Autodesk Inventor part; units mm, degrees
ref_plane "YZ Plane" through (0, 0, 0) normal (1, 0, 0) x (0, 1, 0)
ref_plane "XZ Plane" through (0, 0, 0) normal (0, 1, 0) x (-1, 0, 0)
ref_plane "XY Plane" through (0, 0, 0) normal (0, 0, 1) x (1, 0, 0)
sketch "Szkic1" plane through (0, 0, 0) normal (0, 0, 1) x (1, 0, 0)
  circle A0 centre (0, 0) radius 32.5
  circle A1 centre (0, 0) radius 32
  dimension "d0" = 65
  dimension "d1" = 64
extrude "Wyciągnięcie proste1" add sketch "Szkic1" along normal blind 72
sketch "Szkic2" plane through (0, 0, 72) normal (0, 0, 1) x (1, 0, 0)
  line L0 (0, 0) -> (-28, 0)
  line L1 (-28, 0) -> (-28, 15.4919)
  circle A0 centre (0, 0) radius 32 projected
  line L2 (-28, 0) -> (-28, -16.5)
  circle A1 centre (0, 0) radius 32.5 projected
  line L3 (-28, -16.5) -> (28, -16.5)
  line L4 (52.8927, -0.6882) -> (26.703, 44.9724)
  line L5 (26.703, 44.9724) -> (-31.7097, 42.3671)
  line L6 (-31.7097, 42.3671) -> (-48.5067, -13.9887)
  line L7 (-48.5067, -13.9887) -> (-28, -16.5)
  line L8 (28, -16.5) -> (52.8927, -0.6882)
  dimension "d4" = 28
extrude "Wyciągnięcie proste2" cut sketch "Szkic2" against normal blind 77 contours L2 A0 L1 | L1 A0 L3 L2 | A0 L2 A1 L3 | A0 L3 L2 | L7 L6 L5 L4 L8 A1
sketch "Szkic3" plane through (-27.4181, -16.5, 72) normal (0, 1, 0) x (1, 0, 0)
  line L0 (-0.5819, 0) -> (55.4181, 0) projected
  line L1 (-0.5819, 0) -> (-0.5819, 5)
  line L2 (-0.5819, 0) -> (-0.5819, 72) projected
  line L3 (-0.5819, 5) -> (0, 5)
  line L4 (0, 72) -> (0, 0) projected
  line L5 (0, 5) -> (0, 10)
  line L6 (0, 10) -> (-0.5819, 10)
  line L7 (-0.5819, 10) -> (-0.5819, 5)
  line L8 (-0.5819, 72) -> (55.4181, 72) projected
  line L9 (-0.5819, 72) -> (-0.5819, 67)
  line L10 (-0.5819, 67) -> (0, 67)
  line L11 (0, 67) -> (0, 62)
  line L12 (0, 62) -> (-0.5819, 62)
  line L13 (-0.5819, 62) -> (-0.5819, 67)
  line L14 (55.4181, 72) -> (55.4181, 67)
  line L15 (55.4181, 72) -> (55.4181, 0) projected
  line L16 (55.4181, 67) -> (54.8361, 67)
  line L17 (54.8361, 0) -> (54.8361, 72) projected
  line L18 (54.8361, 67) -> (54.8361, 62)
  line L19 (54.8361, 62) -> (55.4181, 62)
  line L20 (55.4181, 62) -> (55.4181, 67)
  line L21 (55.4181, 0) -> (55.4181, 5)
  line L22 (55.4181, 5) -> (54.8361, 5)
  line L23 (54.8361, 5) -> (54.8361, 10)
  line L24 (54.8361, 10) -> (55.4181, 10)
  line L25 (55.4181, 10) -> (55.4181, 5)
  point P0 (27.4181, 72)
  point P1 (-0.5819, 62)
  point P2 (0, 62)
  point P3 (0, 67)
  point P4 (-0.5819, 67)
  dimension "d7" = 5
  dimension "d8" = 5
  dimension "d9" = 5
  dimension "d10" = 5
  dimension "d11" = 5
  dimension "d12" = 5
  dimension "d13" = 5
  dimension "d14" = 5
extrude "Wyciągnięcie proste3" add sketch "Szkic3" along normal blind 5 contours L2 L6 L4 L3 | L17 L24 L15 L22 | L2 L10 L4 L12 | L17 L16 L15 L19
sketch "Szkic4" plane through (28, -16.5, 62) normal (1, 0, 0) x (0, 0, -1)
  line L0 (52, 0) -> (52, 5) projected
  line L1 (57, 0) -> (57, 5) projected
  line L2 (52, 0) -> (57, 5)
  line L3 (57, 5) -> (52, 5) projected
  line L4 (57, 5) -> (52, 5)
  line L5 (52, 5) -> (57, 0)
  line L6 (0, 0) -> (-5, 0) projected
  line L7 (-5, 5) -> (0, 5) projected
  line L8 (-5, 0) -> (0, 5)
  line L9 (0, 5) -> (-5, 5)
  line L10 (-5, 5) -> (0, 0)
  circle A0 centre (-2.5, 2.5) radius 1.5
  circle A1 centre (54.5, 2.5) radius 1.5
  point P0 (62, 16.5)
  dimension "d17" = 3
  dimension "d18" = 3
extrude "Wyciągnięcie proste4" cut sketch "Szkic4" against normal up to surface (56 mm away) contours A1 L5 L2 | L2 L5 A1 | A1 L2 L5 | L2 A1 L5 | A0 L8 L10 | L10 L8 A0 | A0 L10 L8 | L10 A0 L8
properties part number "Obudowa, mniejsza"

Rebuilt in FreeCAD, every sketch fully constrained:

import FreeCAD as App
import Part
import Sketcher
from FreeCAD import Vector

doc = App.newDocument("Part")
params = doc.addObject("Spreadsheet::Sheet", "Params")
for row, (alias, value) in enumerate([
    ("sketch1_diameter", "65 mm"),
    ("sketch1_diameter2", "64 mm"),
    ("pad1_length", "72 mm"),
    ("sketch2_length", "29.49 mm"),
    ("sketch2_length2", "20.66 mm"),
    ("pocket1_length", "77 mm"),
    ("sketch3_height", "5 mm"),
    ("pad2_length", "5 mm"),
    ("sketch4_diameter", "3 mm"),
    ("pocket2_length", "56 mm"),
], start=1):
    params.set(f"A{row}", alias)
    params.set(f"B{row}", "=" + value)
    params.setAlias(f"B{row}", alias)

body = doc.addObject("PartDesign::Body", "Body")

# Sketch on XY plane
sketch1 = doc.addObject("Sketcher::SketchObject", "Sketch")
body.addObject(sketch1)
sketch1.AttachmentSupport = (doc.XY_Plane, [""])
sketch1.MapMode = "FlatFace"
sketch1.addGeometry(Part.Circle(Vector(0, 0, 0), Vector(0, 0, 1), 32.5), False)
sketch1.addGeometry(Part.Circle(Vector(0, 0, 0), Vector(0, 0, 1), 32), False)
sketch1.addConstraint(Sketcher.Constraint("Coincident", 0, 3, -1, 1))
sketch1.addConstraint(Sketcher.Constraint("Coincident", 1, 3, -1, 1))
sketch1.addConstraint(Sketcher.Constraint("Diameter", 0, 65.0))
sketch1.addConstraint(Sketcher.Constraint("Diameter", 1, 64.0))
sketch1.setExpression("Constraints[2]", "Params.sketch1_diameter")
sketch1.setExpression("Constraints[3]", "Params.sketch1_diameter2")
pad1 = doc.addObject("PartDesign::Pad", "Pad")
body.addObject(pad1)
pad1.Profile = sketch1
pad1.setExpression("Length", "Params.pad1_length")

# Sketch on XY plane
sketch2 = doc.addObject("Sketcher::SketchObject", "Sketch001")
body.addObject(sketch2)
sketch2.AttachmentSupport = (doc.XY_Plane, [""])
sketch2.MapMode = "FlatFace"
sketch2.AttachmentOffset = App.Placement(Vector(0, 0, 72), App.Rotation())
sketch2.addGeometry(Part.LineSegment(Vector(28, -16.5, 0), Vector(52.8927, -0.6882, 0)), False)
sketch2.addGeometry(Part.LineSegment(Vector(52.8927, -0.6882, 0), Vector(26.703, 44.9724, 0)), False)
sketch2.addGeometry(Part.LineSegment(Vector(26.703, 44.9724, 0), Vector(-31.7097, 42.3671, 0)), False)
sketch2.addGeometry(Part.LineSegment(Vector(-31.7097, 42.3671, 0), Vector(-48.5067, -13.9887, 0)), False)
sketch2.addGeometry(Part.LineSegment(Vector(-48.5067, -13.9887, 0), Vector(-28, -16.5, 0)), False)
sketch2.addGeometry(Part.LineSegment(Vector(-28, -16.5, 0), Vector(28, -16.5, 0)), False)
sketch2.addConstraint(Sketcher.Constraint("Coincident", 0, 2, 1, 1))
sketch2.addConstraint(Sketcher.Constraint("Coincident", 1, 2, 2, 1))
sketch2.addConstraint(Sketcher.Constraint("Coincident", 2, 2, 3, 1))
sketch2.addConstraint(Sketcher.Constraint("Coincident", 3, 2, 4, 1))
sketch2.addConstraint(Sketcher.Constraint("Coincident", 4, 2, 5, 1))
sketch2.addConstraint(Sketcher.Constraint("Coincident", 5, 2, 0, 1))
sketch2.addConstraint(Sketcher.Constraint("Horizontal", 5))
sketch2.addConstraint(Sketcher.Constraint("DistanceX", 4, 2, -1, 1, 28.0))
sketch2.addConstraint(Sketcher.Constraint("DistanceX", -1, 1, 5, 2, 28.0))
sketch2.addConstraint(Sketcher.Constraint("DistanceY", 4, 2, -1, 1, 16.5))
sketch2.addConstraint(Sketcher.Constraint("Distance", 0, 29.49))
sketch2.addConstraint(Sketcher.Constraint("Distance", 4, 20.66))
sketch2.addConstraint(Sketcher.Constraint("DistanceX", -1, 1, 1, 2, 26.703))
sketch2.addConstraint(Sketcher.Constraint("DistanceY", -1, 1, 2, 2, 42.367))
sketch2.addConstraint(Sketcher.Constraint("DistanceX", 3, 2, 2, 2, 16.797))
sketch2.addConstraint(Sketcher.Constraint("DistanceY", 3, 2, 1, 2, 58.961))
sketch2.addConstraint(Sketcher.Constraint("Distance", 1, 52.6383))
sketch2.addConstraint(Sketcher.Constraint("Distance", 2, 58.4708))
sketch2.setExpression("Constraints[10]", "Params.sketch2_length")
sketch2.setExpression("Constraints[11]", "Params.sketch2_length2")
pocket1 = doc.addObject("PartDesign::Pocket", "Pocket")
body.addObject(pocket1)
pocket1.Profile = sketch2
pocket1.setExpression("Length", "Params.pocket1_length")

# Sketch on XZ plane
sketch3 = doc.addObject("Sketcher::SketchObject", "Sketch002")
body.addObject(sketch3)
sketch3.AttachmentSupport = (doc.XZ_Plane, [""])
sketch3.MapMode = "FlatFace"
sketch3.AttachmentOffset = App.Placement(Vector(0, 0, 16.5), App.Rotation())
sketch3.addGeometry(Part.LineSegment(Vector(-28, 62, 0), Vector(-28, 67, 0)), False)
sketch3.addGeometry(Part.LineSegment(Vector(-28, 67, 0), Vector(-27.4181, 67, 0)), False)
sketch3.addGeometry(Part.LineSegment(Vector(-27.4181, 67, 0), Vector(-27.4181, 62, 0)), False)
sketch3.addGeometry(Part.LineSegment(Vector(-27.4181, 62, 0), Vector(-28, 62, 0)), False)
sketch3.addGeometry(Part.LineSegment(Vector(27.418, 62, 0), Vector(27.418, 67, 0)), False)
sketch3.addGeometry(Part.LineSegment(Vector(27.418, 67, 0), Vector(28, 67, 0)), False)
sketch3.addGeometry(Part.LineSegment(Vector(28, 67, 0), Vector(28, 62, 0)), False)
sketch3.addGeometry(Part.LineSegment(Vector(28, 62, 0), Vector(27.418, 62, 0)), False)
sketch3.addGeometry(Part.LineSegment(Vector(-28, 5, 0), Vector(-28, 10, 0)), False)
sketch3.addGeometry(Part.LineSegment(Vector(-28, 10, 0), Vector(-27.4181, 10, 0)), False)
sketch3.addGeometry(Part.LineSegment(Vector(-27.4181, 10, 0), Vector(-27.4181, 5, 0)), False)
sketch3.addGeometry(Part.LineSegment(Vector(-27.4181, 5, 0), Vector(-28, 5, 0)), False)
sketch3.addGeometry(Part.LineSegment(Vector(27.418, 5, 0), Vector(27.418, 10, 0)), False)
sketch3.addGeometry(Part.LineSegment(Vector(27.418, 10, 0), Vector(28, 10, 0)), False)
sketch3.addGeometry(Part.LineSegment(Vector(28, 10, 0), Vector(28, 5, 0)), False)
sketch3.addGeometry(Part.LineSegment(Vector(28, 5, 0), Vector(27.418, 5, 0)), False)
sketch3.addConstraint(Sketcher.Constraint("Coincident", 0, 2, 1, 1))
sketch3.addConstraint(Sketcher.Constraint("Coincident", 1, 2, 2, 1))
sketch3.addConstraint(Sketcher.Constraint("Coincident", 2, 2, 3, 1))
sketch3.addConstraint(Sketcher.Constraint("Coincident", 3, 2, 0, 1))
sketch3.addConstraint(Sketcher.Constraint("Coincident", 4, 2, 5, 1))
sketch3.addConstraint(Sketcher.Constraint("Coincident", 5, 2, 6, 1))
sketch3.addConstraint(Sketcher.Constraint("Coincident", 6, 2, 7, 1))
sketch3.addConstraint(Sketcher.Constraint("Coincident", 7, 2, 4, 1))
sketch3.addConstraint(Sketcher.Constraint("Coincident", 8, 2, 9, 1))
sketch3.addConstraint(Sketcher.Constraint("Coincident", 9, 2, 10, 1))
sketch3.addConstraint(Sketcher.Constraint("Coincident", 10, 2, 11, 1))
sketch3.addConstraint(Sketcher.Constraint("Coincident", 11, 2, 8, 1))
sketch3.addConstraint(Sketcher.Constraint("Coincident", 12, 2, 13, 1))
sketch3.addConstraint(Sketcher.Constraint("Coincident", 13, 2, 14, 1))
sketch3.addConstraint(Sketcher.Constraint("Coincident", 14, 2, 15, 1))
sketch3.addConstraint(Sketcher.Constraint("Coincident", 15, 2, 12, 1))
sketch3.addConstraint(Sketcher.Constraint("Vertical", 0))
sketch3.addConstraint(Sketcher.Constraint("Horizontal", 1))
sketch3.addConstraint(Sketcher.Constraint("Vertical", 2))
sketch3.addConstraint(Sketcher.Constraint("Horizontal", 3))
sketch3.addConstraint(Sketcher.Constraint("Vertical", 4))
sketch3.addConstraint(Sketcher.Constraint("Horizontal", 5))
sketch3.addConstraint(Sketcher.Constraint("Vertical", 6))
sketch3.addConstraint(Sketcher.Constraint("Horizontal", 7))
sketch3.addConstraint(Sketcher.Constraint("Vertical", 8))
sketch3.addConstraint(Sketcher.Constraint("Horizontal", 9))
sketch3.addConstraint(Sketcher.Constraint("Vertical", 10))
sketch3.addConstraint(Sketcher.Constraint("Horizontal", 11))
sketch3.addConstraint(Sketcher.Constraint("Vertical", 12))
sketch3.addConstraint(Sketcher.Constraint("Horizontal", 13))
sketch3.addConstraint(Sketcher.Constraint("Vertical", 14))
sketch3.addConstraint(Sketcher.Constraint("Horizontal", 15))
sketch3.addConstraint(Sketcher.Constraint("Symmetric", 1, 2, 4, 2, -2))
sketch3.addConstraint(Sketcher.Constraint("Symmetric", 3, 2, 6, 2, -2))
sketch3.addConstraint(Sketcher.Constraint("Symmetric", 9, 2, 12, 2, -2))
sketch3.addConstraint(Sketcher.Constraint("Symmetric", 11, 2, 14, 2, -2))
sketch3.addConstraint(Sketcher.Constraint("Vertical", 3, 2, 8, 2))
sketch3.addConstraint(Sketcher.Constraint("Vertical", 2, 2, 9, 2))
sketch3.addConstraint(Sketcher.Constraint("Equal", 6, 8))
sketch3.addConstraint(Sketcher.Constraint("DistanceY", 0, 1, 0, 2, 5.0))
sketch3.addConstraint(Sketcher.Constraint("DistanceY", -1, 1, 10, 2, 5.0))
sketch3.addConstraint(Sketcher.Constraint("DistanceX", 0, 2, -1, 1, 28.0))
sketch3.addConstraint(Sketcher.Constraint("DistanceY", -1, 1, 0, 2, 67.0))
sketch3.addConstraint(Sketcher.Constraint("DistanceX", 1, 1, 1, 2, 0.582))
sketch3.setExpression("Constraints[39]", "Params.sketch3_height")
pad2 = doc.addObject("PartDesign::Pad", "Pad001")
body.addObject(pad2)
pad2.Profile = sketch3
pad2.setExpression("Length", "Params.pad2_length")
pad2.Reversed = True

# Sketch on YZ plane
sketch4 = doc.addObject("Sketcher::SketchObject", "Sketch003")
body.addObject(sketch4)
sketch4.AttachmentSupport = (doc.YZ_Plane, [""])
sketch4.MapMode = "FlatFace"
sketch4.AttachmentOffset = App.Placement(Vector(0, 0, 28), App.Rotation())
sketch4.addGeometry(Part.Circle(Vector(-14, 7.5, 0), Vector(0, 0, 1), 1.5), False)
sketch4.addGeometry(Part.Circle(Vector(-14, 64.5, 0), Vector(0, 0, 1), 1.5), False)
sketch4.addConstraint(Sketcher.Constraint("Equal", 0, 1))
sketch4.addConstraint(Sketcher.Constraint("Vertical", 0, 3, 1, 3))
sketch4.addConstraint(Sketcher.Constraint("Diameter", 0, 3.0))
sketch4.addConstraint(Sketcher.Constraint("DistanceX", 0, 3, -1, 1, 14.0))
sketch4.addConstraint(Sketcher.Constraint("DistanceY", 0, 3, 1, 3, 57.0))
sketch4.addConstraint(Sketcher.Constraint("DistanceY", -1, 1, 0, 3, 7.5))
sketch4.setExpression("Constraints[2]", "Params.sketch4_diameter")
pocket2 = doc.addObject("PartDesign::Pocket", "Pocket001")
body.addObject(pocket2)
pocket2.Profile = sketch4
pocket2.setExpression("Length", "Params.pocket2_length")

doc.recompute()
